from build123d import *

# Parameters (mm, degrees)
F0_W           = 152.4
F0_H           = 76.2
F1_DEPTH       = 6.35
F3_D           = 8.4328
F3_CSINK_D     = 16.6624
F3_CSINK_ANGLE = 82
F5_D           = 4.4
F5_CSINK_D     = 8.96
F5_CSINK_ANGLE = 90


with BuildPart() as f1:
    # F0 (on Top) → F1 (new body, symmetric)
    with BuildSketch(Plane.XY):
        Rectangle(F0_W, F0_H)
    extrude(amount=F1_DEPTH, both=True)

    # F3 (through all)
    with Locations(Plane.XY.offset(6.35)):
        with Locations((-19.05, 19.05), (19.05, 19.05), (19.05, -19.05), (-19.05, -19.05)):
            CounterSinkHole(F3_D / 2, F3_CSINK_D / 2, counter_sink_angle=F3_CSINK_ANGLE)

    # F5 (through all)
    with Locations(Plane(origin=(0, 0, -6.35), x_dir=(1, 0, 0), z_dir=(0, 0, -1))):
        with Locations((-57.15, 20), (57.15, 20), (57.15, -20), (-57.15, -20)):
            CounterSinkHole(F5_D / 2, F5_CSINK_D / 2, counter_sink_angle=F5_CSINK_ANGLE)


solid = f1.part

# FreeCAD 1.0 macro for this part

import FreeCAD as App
import Part
import Sketcher
Q = App.Units.Quantity

doc = App.newDocument("Part")
body = doc.addObject("PartDesign::Body", "Body")

sketch1 = body.newObject("Sketcher::SketchObject", "Sketch")
sketch1.AttachmentSupport = (doc.getObject("XY_Plane"), [""])
sketch1.MapMode = "FlatFace"
sketch1.addGeometry([
    Part.LineSegment(App.Vector(-76, 38, 0), App.Vector(-76, -38, 0)),
    Part.LineSegment(App.Vector(-76, -38, 0), App.Vector(76, -38, 0)),
    Part.LineSegment(App.Vector(76, -38, 0), App.Vector(76, 38, 0)),
    Part.LineSegment(App.Vector(76, 38, 0), App.Vector(-76, 38, 0)),
], False)
sketch1.addConstraint([
    Sketcher.Constraint("Coincident", 0, 2, 1, 1),
    Sketcher.Constraint("Coincident", 1, 2, 2, 1),
    Sketcher.Constraint("Coincident", 2, 2, 3, 1),
    Sketcher.Constraint("Coincident", 3, 2, 0, 1),
    Sketcher.Constraint("Vertical", 0),
    Sketcher.Constraint("Horizontal", 1),
    Sketcher.Constraint("Vertical", 2),
    Sketcher.Constraint("Horizontal", 3),
    Sketcher.Constraint("Symmetric", 0, 2, 2, 2, -1, 1),
    Sketcher.Constraint("DistanceX", 1, 1, 1, 2, Q("6 in")),
    Sketcher.Constraint("DistanceY", 0, 2, 0, 1, Q("3 in")),
])
pad1 = body.newObject("PartDesign::Pad", "Pad")
pad1.Profile = sketch1
pad1.Length = Q("0.5 in")
pad1.Midplane = True

sketch2 = body.newObject("Sketcher::SketchObject", "Sketch001")
sketch2.AttachmentSupport = (doc.getObject("XY_Plane"), [""])
sketch2.MapMode = "FlatFace"
sketch2.AttachmentOffset = App.Placement(App.Vector(0, 0, 0.25 * 25.4), App.Rotation())
sketch2.addGeometry([
    Part.Circle(App.Vector(-19.1, 19.1, 0), App.Vector(0, 0, 1), 4.2),
    Part.Circle(App.Vector(19.1, 19.1, 0), App.Vector(0, 0, 1), 4.2),
    Part.Circle(App.Vector(19.1, -19.1, 0), App.Vector(0, 0, 1), 4.2),
    Part.Circle(App.Vector(-19.1, -19.1, 0), App.Vector(0, 0, 1), 4.2),
], False)
sketch2.addConstraint([
    Sketcher.Constraint("Equal", 0, 1),
    Sketcher.Constraint("Equal", 1, 2),
    Sketcher.Constraint("Equal", 2, 3),
    Sketcher.Constraint("Symmetric", 0, 3, 2, 3, -1, 1),
    Sketcher.Constraint("Symmetric", 1, 3, 3, 3, -1, 1),
    Sketcher.Constraint("Symmetric", 0, 3, 1, 3, -2),
    Sketcher.Constraint("Diameter", 0, Q("0.332 in")),
    Sketcher.Constraint("DistanceX", 0, 3, 1, 3, Q("1.5 in")),
    Sketcher.Constraint("DistanceY", 2, 3, 1, 3, Q("1.5 in")),
])
doc.recompute()
hole = body.newObject("PartDesign::Hole", "Hole")
hole.Profile = sketch2
hole.ThreadType = "None"
hole.Diameter = Q("0.332 in")
hole.DepthType = "ThroughAll"
hole.HoleCutType = "Countersink"
hole.HoleCutDiameter = Q("0.656 in")
hole.HoleCutCountersinkAngle = 82

sketch3 = body.newObject("Sketcher::SketchObject", "Sketch002")
sketch3.AttachmentSupport = (doc.getObject("XY_Plane"), [""])
sketch3.MapMode = "FlatFace"
sketch3.AttachmentOffset = App.Placement(App.Vector(0, 0, -0.25 * 25.4), App.Rotation())
sketch3.addGeometry([
    Part.Circle(App.Vector(-57.1, -20, 0), App.Vector(0, 0, 1), 2.2),
    Part.Circle(App.Vector(57.1, -20, 0), App.Vector(0, 0, 1), 2.2),
    Part.Circle(App.Vector(57.1, 20, 0), App.Vector(0, 0, 1), 2.2),
    Part.Circle(App.Vector(-57.1, 20, 0), App.Vector(0, 0, 1), 2.2),
], False)
sketch3.addConstraint([
    Sketcher.Constraint("Equal", 0, 1),
    Sketcher.Constraint("Equal", 1, 2),
    Sketcher.Constraint("Equal", 2, 3),
    Sketcher.Constraint("Symmetric", 0, 3, 2, 3, -1, 1),
    Sketcher.Constraint("Symmetric", 1, 3, 3, 3, -1, 1),
    Sketcher.Constraint("Symmetric", 0, 3, 1, 3, -2),
    Sketcher.Constraint("DistanceX", 0, 3, 1, 3, Q("4.5 in")),
    Sketcher.Constraint("Diameter", 0, Q("4.4 mm")),
    Sketcher.Constraint("DistanceY", 0, 3, -1, 1, Q("20 mm")),
])
doc.recompute()
hole2 = body.newObject("PartDesign::Hole", "Hole001")
hole2.Profile = sketch3
hole2.ThreadType = "None"
hole2.Diameter = 4.4
hole2.DepthType = "ThroughAll"
hole2.HoleCutType = "Countersink"
hole2.HoleCutDiameter = 8.96
hole2.HoleCutCountersinkAngle = 90
hole2.Reversed = True

doc.recompute()
